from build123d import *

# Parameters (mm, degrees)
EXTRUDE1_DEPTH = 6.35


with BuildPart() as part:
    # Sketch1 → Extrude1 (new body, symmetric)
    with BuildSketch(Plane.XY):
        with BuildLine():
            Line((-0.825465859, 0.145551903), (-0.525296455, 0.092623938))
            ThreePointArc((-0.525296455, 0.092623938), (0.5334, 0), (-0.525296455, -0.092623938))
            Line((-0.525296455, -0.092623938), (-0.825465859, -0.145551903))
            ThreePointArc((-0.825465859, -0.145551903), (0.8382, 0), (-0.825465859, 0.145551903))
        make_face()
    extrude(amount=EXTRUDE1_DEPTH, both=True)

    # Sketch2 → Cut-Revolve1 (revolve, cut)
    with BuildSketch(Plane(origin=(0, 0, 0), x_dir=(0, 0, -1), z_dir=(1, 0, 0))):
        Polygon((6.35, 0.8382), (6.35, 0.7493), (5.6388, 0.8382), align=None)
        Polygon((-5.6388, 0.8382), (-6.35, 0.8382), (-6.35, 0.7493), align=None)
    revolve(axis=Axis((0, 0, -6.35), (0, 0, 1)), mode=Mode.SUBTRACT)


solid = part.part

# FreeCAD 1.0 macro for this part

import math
import FreeCAD as App
import Part
import Sketcher
from FreeCAD import Vector
Q = App.Units.Quantity

doc = App.newDocument("Part")
body = doc.addObject("PartDesign::Body", "Body")

sketch1 = body.newObject("Sketcher::SketchObject", "Sketch")
sketch1.AttachmentSupport = (doc.getObject("XY_Plane"), [""])
sketch1.MapMode = "FlatFace"
sketch1.addGeometry([
    Part.LineSegment(Vector(-0.83, 0.15, 0), Vector(-0.53, 0.09, 0)),
    Part.ArcOfCircle(Part.Circle(Vector(0, 0, 0), Vector(0, 0, 1), 0.53), math.radians(-170), math.radians(170)),
    Part.LineSegment(Vector(-0.53, -0.09, 0), Vector(-0.83, -0.15, 0)),
    Part.ArcOfCircle(Part.Circle(Vector(0, 0, 0), Vector(0, 0, 1), 0.84), math.radians(-170), math.radians(170)),
], False)
sketch1.addConstraint([
    Sketcher.Constraint("Coincident", 0, 2, 1, 2),
    Sketcher.Constraint("Coincident", 1, 1, 2, 1),
    Sketcher.Constraint("Coincident", 2, 2, 3, 1),
    Sketcher.Constraint("Coincident", 3, 2, 0, 1),
    Sketcher.Constraint("Coincident", 1, 3, -1, 1),
    Sketcher.Constraint("Coincident", 3, 3, -1, 1),
    Sketcher.Constraint("Vertical", 0, 2, 1, 1),
    Sketcher.Constraint("Vertical", 2, 2, 3, 2),
    Sketcher.Constraint("Angle", 0, Q("-10 deg")),
    Sketcher.Constraint("Radius", 1, Q("0.021 in")),
    Sketcher.Constraint("Radius", 3, Q("0.033 in")),
    Sketcher.Constraint("DistanceY", 2, 2, -1, 1, 0.145552),
])
pad1 = body.newObject("PartDesign::Pad", "Pad")
pad1.Profile = sketch1
pad1.Length = Q("0.5 in")
pad1.Midplane = True

sketch2 = body.newObject("Sketcher::SketchObject", "Sketch001")
sketch2.AttachmentSupport = (doc.getObject("YZ_Plane"), [""])
sketch2.MapMode = "FlatFace"
sketch2.addGeometry([
    Part.LineSegment(Vector(0.75, -6.35, 0), Vector(0.84, -6.35, 0)),
    Part.LineSegment(Vector(0.84, -6.35, 0), Vector(0.84, -5.64, 0)),
    Part.LineSegment(Vector(0.84, -5.64, 0), Vector(0.75, -6.35, 0)),
    Part.LineSegment(Vector(0.84, 5.64, 0), Vector(0.84, 6.35, 0)),
    Part.LineSegment(Vector(0.84, 6.35, 0), Vector(0.75, 6.35, 0)),
    Part.LineSegment(Vector(0.75, 6.35, 0), Vector(0.84, 5.64, 0)),
], False)
sketch2.addConstraint([
    Sketcher.Constraint("Coincident", 0, 2, 1, 1),
    Sketcher.Constraint("Coincident", 1, 2, 2, 1),
    Sketcher.Constraint("Coincident", 2, 2, 0, 1),
    Sketcher.Constraint("Coincident", 3, 2, 4, 1),
    Sketcher.Constraint("Coincident", 4, 2, 5, 1),
    Sketcher.Constraint("Coincident", 5, 2, 3, 1),
    Sketcher.Constraint("Horizontal", 0),
    Sketcher.Constraint("Vertical", 1),
    Sketcher.Constraint("Vertical", 3),
    Sketcher.Constraint("Horizontal", 4),
    Sketcher.Constraint("Symmetric", 0, 2, 3, 2, -1),
    Sketcher.Constraint("Vertical", 2, 2, 4, 2),
    Sketcher.Constraint("Equal", 1, 3),
    Sketcher.Constraint("DistanceY", 0, 2, 3, 2, Q("0.5 in")),
    Sketcher.Constraint("DistanceY", 1, 1, 1, 2, Q("0.028 in")),
    Sketcher.Constraint("DistanceX", 0, 1, 0, 2, Q("0.0035 in")),
    Sketcher.Constraint("DistanceX", -1, 1, 0, 2, Q("0.033 in")),
])
groove = body.newObject("PartDesign::Groove", "Groove")
groove.Profile = sketch2
groove.ReferenceAxis = (sketch2, ["V_Axis"])
groove.Angle = 360

doc.recompute()
